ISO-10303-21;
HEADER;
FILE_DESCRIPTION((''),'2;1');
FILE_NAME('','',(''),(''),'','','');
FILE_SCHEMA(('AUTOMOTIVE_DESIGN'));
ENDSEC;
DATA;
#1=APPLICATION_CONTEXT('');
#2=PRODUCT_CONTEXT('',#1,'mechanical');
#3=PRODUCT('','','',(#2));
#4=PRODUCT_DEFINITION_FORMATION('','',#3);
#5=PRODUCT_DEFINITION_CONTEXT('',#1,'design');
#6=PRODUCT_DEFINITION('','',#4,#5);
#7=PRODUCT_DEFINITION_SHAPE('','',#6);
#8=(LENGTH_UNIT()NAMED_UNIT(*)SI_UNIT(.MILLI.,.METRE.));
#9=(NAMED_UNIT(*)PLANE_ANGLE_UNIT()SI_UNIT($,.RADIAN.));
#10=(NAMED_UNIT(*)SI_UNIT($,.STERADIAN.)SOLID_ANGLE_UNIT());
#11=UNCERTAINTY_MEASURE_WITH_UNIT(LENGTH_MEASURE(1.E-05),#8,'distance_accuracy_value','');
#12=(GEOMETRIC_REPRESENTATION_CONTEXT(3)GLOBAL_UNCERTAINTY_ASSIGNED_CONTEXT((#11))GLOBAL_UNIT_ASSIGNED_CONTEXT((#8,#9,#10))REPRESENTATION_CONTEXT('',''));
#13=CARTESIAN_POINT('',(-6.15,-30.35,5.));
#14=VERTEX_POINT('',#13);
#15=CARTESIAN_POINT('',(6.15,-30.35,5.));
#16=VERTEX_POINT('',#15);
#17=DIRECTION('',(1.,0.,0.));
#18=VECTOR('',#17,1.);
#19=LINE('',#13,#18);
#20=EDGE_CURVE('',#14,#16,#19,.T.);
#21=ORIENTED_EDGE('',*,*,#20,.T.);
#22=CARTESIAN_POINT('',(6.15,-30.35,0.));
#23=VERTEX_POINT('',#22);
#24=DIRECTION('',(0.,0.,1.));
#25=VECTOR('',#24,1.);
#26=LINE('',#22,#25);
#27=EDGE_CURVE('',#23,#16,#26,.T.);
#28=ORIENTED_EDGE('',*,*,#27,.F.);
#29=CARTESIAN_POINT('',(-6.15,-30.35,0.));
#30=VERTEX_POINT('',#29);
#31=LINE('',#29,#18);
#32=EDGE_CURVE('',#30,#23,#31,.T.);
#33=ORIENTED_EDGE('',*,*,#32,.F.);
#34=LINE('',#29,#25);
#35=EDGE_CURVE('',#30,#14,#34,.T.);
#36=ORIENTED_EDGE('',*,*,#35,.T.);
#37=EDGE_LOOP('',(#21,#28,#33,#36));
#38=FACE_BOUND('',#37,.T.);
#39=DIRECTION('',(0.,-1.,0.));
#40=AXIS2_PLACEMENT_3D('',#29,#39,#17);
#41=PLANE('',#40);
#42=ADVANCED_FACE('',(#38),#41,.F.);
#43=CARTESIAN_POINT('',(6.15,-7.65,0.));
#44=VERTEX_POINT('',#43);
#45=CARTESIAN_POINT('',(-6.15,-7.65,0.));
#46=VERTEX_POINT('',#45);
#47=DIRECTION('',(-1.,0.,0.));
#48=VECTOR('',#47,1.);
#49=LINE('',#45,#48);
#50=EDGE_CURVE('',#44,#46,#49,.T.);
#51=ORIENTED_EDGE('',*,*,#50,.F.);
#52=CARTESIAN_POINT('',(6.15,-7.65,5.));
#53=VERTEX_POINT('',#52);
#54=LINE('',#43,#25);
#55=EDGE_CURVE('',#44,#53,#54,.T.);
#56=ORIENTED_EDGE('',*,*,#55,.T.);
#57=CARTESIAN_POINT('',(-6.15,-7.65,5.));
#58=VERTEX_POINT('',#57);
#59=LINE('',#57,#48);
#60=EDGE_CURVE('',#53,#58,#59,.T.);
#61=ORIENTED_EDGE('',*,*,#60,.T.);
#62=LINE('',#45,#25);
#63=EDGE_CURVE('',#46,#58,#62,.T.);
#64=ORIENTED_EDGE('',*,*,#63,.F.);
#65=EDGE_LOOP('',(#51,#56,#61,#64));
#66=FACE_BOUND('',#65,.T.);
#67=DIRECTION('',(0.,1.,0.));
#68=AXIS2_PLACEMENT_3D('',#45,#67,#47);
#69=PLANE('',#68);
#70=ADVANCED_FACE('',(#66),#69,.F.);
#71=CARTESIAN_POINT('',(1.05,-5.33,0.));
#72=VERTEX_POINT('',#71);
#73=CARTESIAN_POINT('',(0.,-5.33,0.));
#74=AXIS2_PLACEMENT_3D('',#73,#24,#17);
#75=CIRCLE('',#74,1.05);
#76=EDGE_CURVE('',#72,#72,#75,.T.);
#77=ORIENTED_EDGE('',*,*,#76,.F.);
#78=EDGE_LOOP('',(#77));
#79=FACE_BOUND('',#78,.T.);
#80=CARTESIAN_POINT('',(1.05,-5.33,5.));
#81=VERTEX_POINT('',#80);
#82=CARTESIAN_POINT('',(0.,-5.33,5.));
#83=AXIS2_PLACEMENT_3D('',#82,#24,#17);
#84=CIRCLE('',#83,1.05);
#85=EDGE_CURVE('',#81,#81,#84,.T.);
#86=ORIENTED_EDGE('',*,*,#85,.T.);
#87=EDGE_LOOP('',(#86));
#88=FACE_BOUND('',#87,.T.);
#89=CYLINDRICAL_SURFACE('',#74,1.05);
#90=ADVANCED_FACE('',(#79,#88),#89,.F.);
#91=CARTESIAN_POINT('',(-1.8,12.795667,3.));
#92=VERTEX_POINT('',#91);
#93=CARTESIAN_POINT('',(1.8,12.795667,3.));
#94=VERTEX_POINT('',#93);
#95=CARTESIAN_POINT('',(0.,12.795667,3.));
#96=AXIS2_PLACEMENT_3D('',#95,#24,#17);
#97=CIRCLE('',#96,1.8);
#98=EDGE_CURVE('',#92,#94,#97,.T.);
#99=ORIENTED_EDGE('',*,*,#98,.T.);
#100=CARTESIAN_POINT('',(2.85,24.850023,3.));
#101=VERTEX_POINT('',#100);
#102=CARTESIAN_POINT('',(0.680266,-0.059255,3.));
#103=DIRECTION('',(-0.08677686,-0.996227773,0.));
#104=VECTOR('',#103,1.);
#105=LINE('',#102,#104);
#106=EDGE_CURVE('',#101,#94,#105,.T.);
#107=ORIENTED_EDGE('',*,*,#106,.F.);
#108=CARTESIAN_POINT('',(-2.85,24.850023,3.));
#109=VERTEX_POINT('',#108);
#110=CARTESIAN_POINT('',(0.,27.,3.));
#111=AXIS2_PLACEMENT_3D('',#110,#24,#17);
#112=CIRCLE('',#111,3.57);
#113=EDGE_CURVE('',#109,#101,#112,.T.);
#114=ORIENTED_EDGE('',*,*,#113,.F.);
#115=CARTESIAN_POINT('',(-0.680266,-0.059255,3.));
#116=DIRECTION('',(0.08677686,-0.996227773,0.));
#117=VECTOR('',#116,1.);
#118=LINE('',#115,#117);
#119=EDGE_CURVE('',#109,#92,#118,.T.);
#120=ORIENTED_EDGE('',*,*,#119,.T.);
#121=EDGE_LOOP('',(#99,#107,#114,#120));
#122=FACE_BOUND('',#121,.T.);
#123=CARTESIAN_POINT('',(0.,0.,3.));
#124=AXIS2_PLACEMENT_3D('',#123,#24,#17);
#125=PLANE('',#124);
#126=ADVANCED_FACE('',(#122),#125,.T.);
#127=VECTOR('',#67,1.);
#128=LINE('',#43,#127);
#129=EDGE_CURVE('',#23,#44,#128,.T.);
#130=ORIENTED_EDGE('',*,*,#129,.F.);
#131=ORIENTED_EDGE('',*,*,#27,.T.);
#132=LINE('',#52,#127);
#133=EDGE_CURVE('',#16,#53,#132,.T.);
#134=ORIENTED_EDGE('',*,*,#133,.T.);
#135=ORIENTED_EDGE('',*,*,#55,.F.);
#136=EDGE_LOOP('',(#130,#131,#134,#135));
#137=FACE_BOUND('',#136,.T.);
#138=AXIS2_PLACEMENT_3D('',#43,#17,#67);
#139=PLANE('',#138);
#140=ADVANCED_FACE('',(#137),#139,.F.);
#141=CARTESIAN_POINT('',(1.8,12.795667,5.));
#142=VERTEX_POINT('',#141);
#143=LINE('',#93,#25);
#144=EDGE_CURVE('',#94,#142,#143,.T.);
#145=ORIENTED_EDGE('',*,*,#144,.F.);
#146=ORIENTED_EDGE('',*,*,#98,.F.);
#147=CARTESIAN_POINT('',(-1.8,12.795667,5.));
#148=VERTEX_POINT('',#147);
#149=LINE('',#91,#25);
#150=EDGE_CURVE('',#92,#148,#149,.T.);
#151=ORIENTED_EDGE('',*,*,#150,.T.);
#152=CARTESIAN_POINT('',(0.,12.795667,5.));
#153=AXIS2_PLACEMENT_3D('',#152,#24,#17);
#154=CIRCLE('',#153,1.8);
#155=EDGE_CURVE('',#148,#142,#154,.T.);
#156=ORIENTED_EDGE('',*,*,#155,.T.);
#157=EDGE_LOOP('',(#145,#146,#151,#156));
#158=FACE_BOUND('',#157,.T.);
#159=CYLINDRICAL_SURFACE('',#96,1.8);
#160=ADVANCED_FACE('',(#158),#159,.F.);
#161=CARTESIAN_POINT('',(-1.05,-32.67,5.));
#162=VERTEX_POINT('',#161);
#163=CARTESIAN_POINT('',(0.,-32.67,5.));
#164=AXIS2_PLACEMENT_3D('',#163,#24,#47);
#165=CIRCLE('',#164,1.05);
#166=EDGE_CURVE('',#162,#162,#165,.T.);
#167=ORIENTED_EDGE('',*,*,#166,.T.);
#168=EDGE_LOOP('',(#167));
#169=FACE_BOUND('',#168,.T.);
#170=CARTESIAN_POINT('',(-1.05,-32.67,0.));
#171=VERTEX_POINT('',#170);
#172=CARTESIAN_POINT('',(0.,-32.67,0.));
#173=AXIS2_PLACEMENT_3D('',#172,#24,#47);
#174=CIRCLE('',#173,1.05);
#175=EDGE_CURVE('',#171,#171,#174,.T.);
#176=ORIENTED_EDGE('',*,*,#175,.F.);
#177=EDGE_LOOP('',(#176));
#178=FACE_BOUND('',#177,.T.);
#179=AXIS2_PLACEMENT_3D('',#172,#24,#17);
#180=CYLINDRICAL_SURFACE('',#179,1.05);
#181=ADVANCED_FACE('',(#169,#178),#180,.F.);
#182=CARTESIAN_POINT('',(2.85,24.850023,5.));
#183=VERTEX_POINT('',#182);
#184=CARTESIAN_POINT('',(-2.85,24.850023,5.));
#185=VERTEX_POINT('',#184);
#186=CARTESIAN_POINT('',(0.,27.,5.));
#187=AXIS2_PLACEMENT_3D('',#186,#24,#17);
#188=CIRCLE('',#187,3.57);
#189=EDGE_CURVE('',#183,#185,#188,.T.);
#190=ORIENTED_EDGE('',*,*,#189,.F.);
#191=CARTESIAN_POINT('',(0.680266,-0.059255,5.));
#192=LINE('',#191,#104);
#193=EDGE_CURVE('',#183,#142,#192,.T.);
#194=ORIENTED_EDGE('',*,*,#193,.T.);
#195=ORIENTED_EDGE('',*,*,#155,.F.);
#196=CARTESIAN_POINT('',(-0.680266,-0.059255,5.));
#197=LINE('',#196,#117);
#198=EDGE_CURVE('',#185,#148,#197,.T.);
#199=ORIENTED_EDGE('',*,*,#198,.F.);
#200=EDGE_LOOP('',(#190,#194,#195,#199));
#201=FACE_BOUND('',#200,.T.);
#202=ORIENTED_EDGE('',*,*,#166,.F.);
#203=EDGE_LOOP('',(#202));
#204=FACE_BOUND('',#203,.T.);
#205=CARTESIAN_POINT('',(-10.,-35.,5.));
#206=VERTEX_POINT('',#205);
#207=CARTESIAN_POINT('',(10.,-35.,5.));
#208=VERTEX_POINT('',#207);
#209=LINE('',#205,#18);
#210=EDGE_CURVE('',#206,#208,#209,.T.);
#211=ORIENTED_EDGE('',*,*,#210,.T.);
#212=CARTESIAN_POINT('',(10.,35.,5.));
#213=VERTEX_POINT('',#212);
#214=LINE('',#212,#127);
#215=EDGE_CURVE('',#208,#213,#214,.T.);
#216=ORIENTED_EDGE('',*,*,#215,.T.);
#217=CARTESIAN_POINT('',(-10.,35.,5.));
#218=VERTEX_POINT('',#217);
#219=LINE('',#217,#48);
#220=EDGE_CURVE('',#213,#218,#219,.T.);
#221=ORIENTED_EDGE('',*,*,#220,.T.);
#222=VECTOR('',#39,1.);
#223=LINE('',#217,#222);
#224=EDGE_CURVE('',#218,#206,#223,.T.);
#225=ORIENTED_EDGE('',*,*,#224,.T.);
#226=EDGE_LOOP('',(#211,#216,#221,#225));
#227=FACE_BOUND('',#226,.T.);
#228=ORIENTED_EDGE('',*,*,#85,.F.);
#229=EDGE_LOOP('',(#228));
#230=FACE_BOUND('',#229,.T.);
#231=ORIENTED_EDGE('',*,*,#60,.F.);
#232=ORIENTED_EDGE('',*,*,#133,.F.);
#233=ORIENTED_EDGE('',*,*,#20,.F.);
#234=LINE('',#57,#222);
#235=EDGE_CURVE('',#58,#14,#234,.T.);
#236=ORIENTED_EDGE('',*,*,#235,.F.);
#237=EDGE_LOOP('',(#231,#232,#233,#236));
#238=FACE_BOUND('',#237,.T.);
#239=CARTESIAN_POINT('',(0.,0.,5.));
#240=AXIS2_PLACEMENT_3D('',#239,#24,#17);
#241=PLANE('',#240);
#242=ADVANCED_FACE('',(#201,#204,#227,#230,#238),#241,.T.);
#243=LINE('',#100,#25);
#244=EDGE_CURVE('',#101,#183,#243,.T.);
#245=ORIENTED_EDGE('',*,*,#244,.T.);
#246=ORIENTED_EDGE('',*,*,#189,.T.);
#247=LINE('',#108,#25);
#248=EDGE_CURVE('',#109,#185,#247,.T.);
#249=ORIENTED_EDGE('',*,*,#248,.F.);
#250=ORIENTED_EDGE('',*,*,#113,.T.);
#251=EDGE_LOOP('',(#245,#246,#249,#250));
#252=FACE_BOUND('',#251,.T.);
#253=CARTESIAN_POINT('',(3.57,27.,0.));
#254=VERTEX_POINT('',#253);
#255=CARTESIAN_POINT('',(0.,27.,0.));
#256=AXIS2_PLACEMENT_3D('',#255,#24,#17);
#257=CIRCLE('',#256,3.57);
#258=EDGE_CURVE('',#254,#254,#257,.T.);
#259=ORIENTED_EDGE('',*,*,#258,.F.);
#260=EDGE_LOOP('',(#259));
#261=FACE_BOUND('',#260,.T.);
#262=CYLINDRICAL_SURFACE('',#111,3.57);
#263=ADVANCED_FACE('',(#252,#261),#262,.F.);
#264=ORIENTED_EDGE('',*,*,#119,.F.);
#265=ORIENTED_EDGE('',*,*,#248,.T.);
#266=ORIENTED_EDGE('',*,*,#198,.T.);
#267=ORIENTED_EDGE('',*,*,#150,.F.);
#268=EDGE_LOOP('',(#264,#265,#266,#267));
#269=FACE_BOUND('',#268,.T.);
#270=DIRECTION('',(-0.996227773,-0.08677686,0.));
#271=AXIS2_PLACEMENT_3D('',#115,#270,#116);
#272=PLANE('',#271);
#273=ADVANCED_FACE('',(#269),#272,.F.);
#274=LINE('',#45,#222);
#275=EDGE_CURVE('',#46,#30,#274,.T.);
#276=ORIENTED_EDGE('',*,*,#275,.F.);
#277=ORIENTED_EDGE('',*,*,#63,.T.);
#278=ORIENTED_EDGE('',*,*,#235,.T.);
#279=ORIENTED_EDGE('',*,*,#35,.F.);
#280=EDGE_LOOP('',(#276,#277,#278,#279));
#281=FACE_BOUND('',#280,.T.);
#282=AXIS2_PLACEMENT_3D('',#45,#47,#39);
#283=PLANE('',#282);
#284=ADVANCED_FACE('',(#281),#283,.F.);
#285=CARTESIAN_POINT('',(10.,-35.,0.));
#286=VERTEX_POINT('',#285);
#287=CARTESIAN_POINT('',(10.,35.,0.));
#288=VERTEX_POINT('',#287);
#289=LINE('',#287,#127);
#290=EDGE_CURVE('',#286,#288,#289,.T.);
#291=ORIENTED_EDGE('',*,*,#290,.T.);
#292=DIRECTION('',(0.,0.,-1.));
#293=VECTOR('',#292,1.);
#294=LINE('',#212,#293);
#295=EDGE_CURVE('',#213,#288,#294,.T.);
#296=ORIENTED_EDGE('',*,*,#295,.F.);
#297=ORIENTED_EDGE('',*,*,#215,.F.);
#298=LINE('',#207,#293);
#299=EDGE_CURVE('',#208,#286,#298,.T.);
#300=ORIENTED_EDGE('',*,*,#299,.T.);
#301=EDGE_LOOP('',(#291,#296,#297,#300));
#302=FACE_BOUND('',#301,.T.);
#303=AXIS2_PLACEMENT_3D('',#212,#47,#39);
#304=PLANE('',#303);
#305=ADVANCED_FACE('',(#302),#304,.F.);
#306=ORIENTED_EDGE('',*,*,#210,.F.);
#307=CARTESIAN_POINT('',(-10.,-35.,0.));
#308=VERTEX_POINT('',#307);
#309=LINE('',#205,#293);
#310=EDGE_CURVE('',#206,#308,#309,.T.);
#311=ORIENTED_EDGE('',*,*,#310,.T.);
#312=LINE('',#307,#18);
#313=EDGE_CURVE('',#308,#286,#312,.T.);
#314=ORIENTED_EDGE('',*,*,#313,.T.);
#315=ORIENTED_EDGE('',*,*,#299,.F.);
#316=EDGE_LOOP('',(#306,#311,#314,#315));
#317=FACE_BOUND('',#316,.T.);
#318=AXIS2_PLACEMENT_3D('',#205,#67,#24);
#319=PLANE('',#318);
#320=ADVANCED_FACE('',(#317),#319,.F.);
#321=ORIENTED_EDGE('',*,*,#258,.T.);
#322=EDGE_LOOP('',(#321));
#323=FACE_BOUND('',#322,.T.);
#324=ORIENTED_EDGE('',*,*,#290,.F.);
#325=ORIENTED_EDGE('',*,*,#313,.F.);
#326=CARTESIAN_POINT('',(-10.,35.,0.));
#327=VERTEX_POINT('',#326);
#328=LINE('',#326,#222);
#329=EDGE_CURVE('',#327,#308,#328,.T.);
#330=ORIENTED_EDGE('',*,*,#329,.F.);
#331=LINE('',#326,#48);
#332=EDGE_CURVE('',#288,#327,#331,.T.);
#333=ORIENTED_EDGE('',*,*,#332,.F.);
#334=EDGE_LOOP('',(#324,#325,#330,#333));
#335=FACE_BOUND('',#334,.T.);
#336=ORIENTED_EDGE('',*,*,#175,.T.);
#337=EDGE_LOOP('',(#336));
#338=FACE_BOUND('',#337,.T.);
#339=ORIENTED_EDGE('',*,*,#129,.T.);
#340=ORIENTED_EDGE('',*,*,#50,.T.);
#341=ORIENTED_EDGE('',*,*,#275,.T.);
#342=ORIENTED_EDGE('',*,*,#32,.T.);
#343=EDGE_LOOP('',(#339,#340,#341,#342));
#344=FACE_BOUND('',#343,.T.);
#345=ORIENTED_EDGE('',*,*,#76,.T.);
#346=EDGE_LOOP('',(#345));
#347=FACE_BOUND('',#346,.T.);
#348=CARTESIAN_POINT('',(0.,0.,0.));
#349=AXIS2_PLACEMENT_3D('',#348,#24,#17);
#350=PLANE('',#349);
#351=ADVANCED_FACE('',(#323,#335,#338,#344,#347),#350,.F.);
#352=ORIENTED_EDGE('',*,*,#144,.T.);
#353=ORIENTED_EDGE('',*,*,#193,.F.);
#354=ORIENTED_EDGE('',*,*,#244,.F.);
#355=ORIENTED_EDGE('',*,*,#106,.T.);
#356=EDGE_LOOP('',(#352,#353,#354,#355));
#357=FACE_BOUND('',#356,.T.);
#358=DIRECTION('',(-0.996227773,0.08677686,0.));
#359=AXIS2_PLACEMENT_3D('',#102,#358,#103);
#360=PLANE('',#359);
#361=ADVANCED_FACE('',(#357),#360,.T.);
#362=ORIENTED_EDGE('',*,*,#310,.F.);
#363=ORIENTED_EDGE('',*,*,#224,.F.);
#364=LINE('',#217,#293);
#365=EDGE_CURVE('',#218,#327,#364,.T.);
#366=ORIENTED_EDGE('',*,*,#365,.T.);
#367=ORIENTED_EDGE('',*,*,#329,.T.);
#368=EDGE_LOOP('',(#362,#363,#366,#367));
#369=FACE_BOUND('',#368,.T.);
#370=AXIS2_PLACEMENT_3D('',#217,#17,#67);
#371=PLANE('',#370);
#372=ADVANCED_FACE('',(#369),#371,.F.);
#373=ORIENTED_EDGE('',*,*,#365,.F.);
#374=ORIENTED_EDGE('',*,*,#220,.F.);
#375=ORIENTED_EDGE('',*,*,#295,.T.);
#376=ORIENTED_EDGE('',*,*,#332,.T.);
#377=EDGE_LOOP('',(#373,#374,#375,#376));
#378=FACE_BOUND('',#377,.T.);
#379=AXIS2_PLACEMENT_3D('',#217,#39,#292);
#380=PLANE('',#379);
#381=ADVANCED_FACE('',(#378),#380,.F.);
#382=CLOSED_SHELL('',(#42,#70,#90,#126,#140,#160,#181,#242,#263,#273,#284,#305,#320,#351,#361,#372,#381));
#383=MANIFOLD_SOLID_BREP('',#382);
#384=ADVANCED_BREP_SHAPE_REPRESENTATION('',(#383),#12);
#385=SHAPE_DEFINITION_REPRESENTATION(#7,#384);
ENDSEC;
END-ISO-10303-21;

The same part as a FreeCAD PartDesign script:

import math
import FreeCAD as App
import Part
import Sketcher

V = App.Vector

doc = App.newDocument("Part")
params = doc.addObject("Spreadsheet::Sheet", "Params")
for row, (alias, value) in enumerate([
    ("sketch1_width", "20 mm"),
    ("sketch1_height", "70 mm"),
    ("pad1_length", "5 mm"),
    ("sketch2_radius", "1.8 mm"),
    ("sketch2_radius2", "3.57 mm"),
    ("sketch2_length", "12.1 mm"),
    ("pocket1_length", "2 mm"),
    ("sketch3_diameter", "7.14 mm"),
    ("pocket2_length", "3 mm"),
    ("sketch4_diameter", "2.1 mm"),
    ("sketch4_width", "12.3 mm"),
    ("sketch4_height", "22.7 mm"),
    ("pocket3_length", "5 mm"),
], start=1):
    params.set(f"A{row}", alias)
    params.set(f"B{row}", "=" + value)
    params.setAlias(f"B{row}", alias)

body = doc.addObject("PartDesign::Body", "Body")

# Sketch on XY plane
sketch1 = body.newObject("Sketcher::SketchObject", "Sketch")
sketch1.AttachmentSupport = (doc.getObject("XY_Plane"), [""])
sketch1.MapMode = "FlatFace"
sketch1.addGeometry([
    Part.LineSegment(V(-10, 35, 0), V(-10, -35, 0)),
    Part.LineSegment(V(-10, -35, 0), V(10, -35, 0)),
    Part.LineSegment(V(10, -35, 0), V(10, 35, 0)),
    Part.LineSegment(V(10, 35, 0), V(-10, 35, 0)),
], False)
sketch1.addConstraint([
    Sketcher.Constraint("Coincident", 0, 2, 1, 1),
    Sketcher.Constraint("Coincident", 1, 2, 2, 1),
    Sketcher.Constraint("Coincident", 2, 2, 3, 1),
    Sketcher.Constraint("Coincident", 3, 2, 0, 1),
    Sketcher.Constraint("Vertical", 0),
    Sketcher.Constraint("Horizontal", 1),
    Sketcher.Constraint("Vertical", 2),
    Sketcher.Constraint("Horizontal", 3),
    Sketcher.Constraint("Symmetric", 0, 2, 2, 2, -1, 1),
    Sketcher.Constraint("DistanceX", 1, 1, 1, 2, 20.0),
    Sketcher.Constraint("DistanceY", 0, 2, 0, 1, 70.0),
])
sketch1.setExpression("Constraints[9]", "Params.sketch1_width")
sketch1.setExpression("Constraints[10]", "Params.sketch1_height")
pad1 = body.newObject("PartDesign::Pad", "Pad")
pad1.Profile = sketch1
pad1.setExpression("Length", "Params.pad1_length")

# Sketch on XY plane
sketch2 = body.newObject("Sketcher::SketchObject", "Sketch001")
sketch2.AttachmentSupport = (doc.getObject("XY_Plane"), [""])
sketch2.MapMode = "FlatFace"
sketch2.AttachmentOffset = App.Placement(V(0, 0, 5), App.Rotation())
sketch2.addGeometry([
    Part.LineSegment(V(-2.9, 24.9, 0), V(-1.8, 12.8, 0)),  # 0
    Part.ArcOfCircle(Part.Circle(V(0, 12.8, 0), V(0, 0, 1), 1.8), math.radians(180), math.radians(360)),  # 1
    Part.LineSegment(V(1.8, 12.8, 0), V(2.9, 24.9, 0)),  # 2
    Part.ArcOfCircle(Part.Circle(V(0, 27, 0), V(0, 0, 1), 3.6), math.radians(-37), math.radians(0)),  # 3
    Part.ArcOfCircle(Part.Circle(V(0, 27, 0), V(0, 0, 1), 3.6), math.radians(0), math.radians(217)),  # 4
], False)
sketch2.addConstraint([
    Sketcher.Constraint("Coincident", 0, 2, 1, 1),
    Sketcher.Constraint("Coincident", 1, 2, 2, 1),
    Sketcher.Constraint("Coincident", 2, 2, 3, 1),
    Sketcher.Constraint("Tangent", 3, 2, 4, 1),
    Sketcher.Constraint("Coincident", 4, 2, 0, 1),
    Sketcher.Constraint("Equal", 3, 4),
    Sketcher.Constraint("Symmetric", 0, 2, 1, 2, -2),
    Sketcher.Constraint("Symmetric", 2, 2, 4, 2, -2),
    Sketcher.Constraint("Horizontal", 1, 3, 0, 2),
    Sketcher.Constraint("Horizontal", 4, 3, 3, 2),
    Sketcher.Constraint("Radius", 1, 1.8),
    Sketcher.Constraint("Radius", 3, 3.57),
    Sketcher.Constraint("DistanceY", -1, 1, 3, 3, 27.0),
    Sketcher.Constraint("Distance", 0, 12.1),
    Sketcher.Constraint("DistanceX", 4, 2, 2, 2, 5.7),
])
sketch2.setExpression("Constraints[10]", "Params.sketch2_radius")
sketch2.setExpression("Constraints[11]", "Params.sketch2_radius2")
sketch2.setExpression("Constraints[13]", "Params.sketch2_length")
pocket1 = body.newObject("PartDesign::Pocket", "Pocket")
pocket1.Profile = sketch2
pocket1.setExpression("Length", "Params.pocket1_length")

# Sketch on XY plane
sketch3 = body.newObject("Sketcher::SketchObject", "Sketch002")
sketch3.AttachmentSupport = (doc.getObject("XY_Plane"), [""])
sketch3.MapMode = "FlatFace"
sketch3.AttachmentOffset = App.Placement(V(0, 0, 3), App.Rotation())
sketch3.addGeometry(Part.Circle(V(0, 27, 0), V(0, 0, 1), 3.6), False)
sketch3.addConstraint([
    Sketcher.Constraint("PointOnObject", 0, 3, -2),
    Sketcher.Constraint("Diameter", 0, 7.14),
    Sketcher.Constraint("DistanceY", -1, 1, 0, 3, 27.0),
])
sketch3.setExpression("Constraints[1]", "Params.sketch3_diameter")
pocket2 = body.newObject("PartDesign::Pocket", "Pocket001")
pocket2.Profile = sketch3
pocket2.setExpression("Length", "Params.pocket2_length")

# Sketch on XY plane
sketch4 = body.newObject("Sketcher::SketchObject", "Sketch003")
sketch4.AttachmentSupport = (doc.getObject("XY_Plane"), [""])
sketch4.MapMode = "FlatFace"
sketch4.AttachmentOffset = App.Placement(V(0, 0, 5), App.Rotation())
sketch4.addGeometry([
    Part.Circle(V(0, -5.3, 0), V(0, 0, 1), 1.1),  # 0
    Part.Circle(V(0, -32.7, 0), V(0, 0, 1), 1.1),  # 1
    Part.LineSegment(V(-6.2, -7.7, 0), V(-6.2, -30.4, 0)),  # 2
    Part.LineSegment(V(-6.2, -30.4, 0), V(6.2, -30.4, 0)),  # 3
    Part.LineSegment(V(6.2, -30.4, 0), V(6.2, -7.7, 0)),  # 4
    Part.LineSegment(V(6.2, -7.7, 0), V(-6.2, -7.7, 0)),  # 5
], False)
sketch4.addConstraint([
    Sketcher.Constraint("Coincident", 2, 2, 3, 1),
    Sketcher.Constraint("Coincident", 3, 2, 4, 1),
    Sketcher.Constraint("Coincident", 4, 2, 5, 1),
    Sketcher.Constraint("Coincident", 5, 2, 2, 1),
    Sketcher.Constraint("Vertical", 2),
    Sketcher.Constraint("Horizontal", 3),
    Sketcher.Constraint("Vertical", 4),
    Sketcher.Constraint("Horizontal", 5),
    Sketcher.Constraint("Equal", 0, 1),
    Sketcher.Constraint("PointOnObject", 0, 3, -2),
    Sketcher.Constraint("PointOnObject", 1, 3, -2),
    Sketcher.Constraint("Diameter", 0, 2.1),
    Sketcher.Constraint("DistanceX", 3, 1, 3, 2, 12.3),
    Sketcher.Constraint("DistanceY", 2, 2, 2, 1, 22.7),
    Sketcher.Constraint("DistanceY", 0, 3, -1, 1, 5.33),
    Sketcher.Constraint("DistanceY", 1, 3, -1, 1, 32.67),
    Sketcher.Constraint("DistanceX", 2, 2, -1, 1, 6.15),
    Sketcher.Constraint("DistanceY", 2, 2, -1, 1, 30.35),
])
sketch4.setExpression("Constraints[11]", "Params.sketch4_diameter")
sketch4.setExpression("Constraints[12]", "Params.sketch4_width")
sketch4.setExpression("Constraints[13]", "Params.sketch4_height")
pocket3 = body.newObject("PartDesign::Pocket", "Pocket002")
pocket3.Profile = sketch4
pocket3.setExpression("Length", "Params.pocket3_length")

doc.recompute()
